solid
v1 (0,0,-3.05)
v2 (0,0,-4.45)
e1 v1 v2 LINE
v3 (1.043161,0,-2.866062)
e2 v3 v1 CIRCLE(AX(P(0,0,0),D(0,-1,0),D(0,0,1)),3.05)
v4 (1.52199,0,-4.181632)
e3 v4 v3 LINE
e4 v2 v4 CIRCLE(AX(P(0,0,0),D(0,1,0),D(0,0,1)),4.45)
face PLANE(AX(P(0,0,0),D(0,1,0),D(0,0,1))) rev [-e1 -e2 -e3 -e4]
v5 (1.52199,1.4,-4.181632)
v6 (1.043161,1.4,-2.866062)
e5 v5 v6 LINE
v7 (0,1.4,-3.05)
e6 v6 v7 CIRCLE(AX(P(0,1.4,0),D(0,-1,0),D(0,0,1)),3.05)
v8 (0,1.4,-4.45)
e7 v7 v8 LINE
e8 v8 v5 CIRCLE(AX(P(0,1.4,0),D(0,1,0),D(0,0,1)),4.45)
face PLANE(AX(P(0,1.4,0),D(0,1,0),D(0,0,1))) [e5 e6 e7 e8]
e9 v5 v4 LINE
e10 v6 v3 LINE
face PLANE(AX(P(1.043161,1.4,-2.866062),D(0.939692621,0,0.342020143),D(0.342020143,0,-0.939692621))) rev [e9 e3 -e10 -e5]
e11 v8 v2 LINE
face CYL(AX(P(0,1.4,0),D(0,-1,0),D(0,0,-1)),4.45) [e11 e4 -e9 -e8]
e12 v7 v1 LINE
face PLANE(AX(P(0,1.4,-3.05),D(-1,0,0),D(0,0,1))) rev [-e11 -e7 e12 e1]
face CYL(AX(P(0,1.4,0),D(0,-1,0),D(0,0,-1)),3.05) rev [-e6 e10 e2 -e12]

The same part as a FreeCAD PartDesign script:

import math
import FreeCAD as App
import Part
import Sketcher

V = App.Vector
Q = App.Units.Quantity

doc = App.newDocument("Part")
params = doc.addObject("Spreadsheet::Sheet", "Params")
for row, (alias, value) in enumerate([
    ("sketch1_radius", "4.45 mm"),
    ("sketch1_radius2", "3.05 mm"),
    ("pad1_length", "1.4 mm"),
], start=1):
    params.set(f"A{row}", alias)
    params.set(f"B{row}", "=" + value)
    params.setAlias(f"B{row}", alias)

body = doc.addObject("PartDesign::Body", "Body")

# Sketch on XZ plane
sketch1 = body.newObject("Sketcher::SketchObject", "Sketch")
sketch1.AttachmentSupport = (doc.getObject("XZ_Plane"), [""])
sketch1.MapMode = "FlatFace"
sketch1.addGeometry([
    Part.LineSegment(V(0, -3, 0), V(0, -4.5, 0)),
    Part.ArcOfCircle(Part.Circle(V(0, 0, 0), V(0, 0, 1), 4.5), math.radians(-70), math.radians(270)),
    Part.LineSegment(V(1.5, -4.2, 0), V(1, -2.9, 0)),
    Part.ArcOfCircle(Part.Circle(V(0, 0, 0), V(0, 0, 1), 3), math.radians(-70), math.radians(270)),
], False)
sketch1.addConstraint([
    Sketcher.Constraint("Coincident", 0, 2, 1, 2),
    Sketcher.Constraint("Coincident", 1, 1, 2, 1),
    Sketcher.Constraint("Coincident", 2, 2, 3, 1),
    Sketcher.Constraint("Coincident", 3, 2, 0, 1),
    Sketcher.Constraint("Vertical", 0),
    Sketcher.Constraint("Coincident", 1, 3, -1, 1),
    Sketcher.Constraint("Coincident", 3, 3, -1, 1),
    Sketcher.Constraint("PointOnObject", 0, 2, -2),
    Sketcher.Constraint("Angle", 2, Q("110 deg")),
    Sketcher.Constraint("Radius", 1, Q("4.45 mm")),
    Sketcher.Constraint("Radius", 3, Q("3.05 mm")),
    Sketcher.Constraint("DistanceX", -1, 1, 1, 1, Q("1.52199 mm")),
])
sketch1.setExpression("Constraints[9]", "Params.sketch1_radius")
sketch1.setExpression("Constraints[10]", "Params.sketch1_radius2")
pad1 = body.newObject("PartDesign::Pad", "Pad")
pad1.Profile = sketch1
pad1.setExpression("Length", "Params.pad1_length")
pad1.Reversed = True

doc.recompute()
